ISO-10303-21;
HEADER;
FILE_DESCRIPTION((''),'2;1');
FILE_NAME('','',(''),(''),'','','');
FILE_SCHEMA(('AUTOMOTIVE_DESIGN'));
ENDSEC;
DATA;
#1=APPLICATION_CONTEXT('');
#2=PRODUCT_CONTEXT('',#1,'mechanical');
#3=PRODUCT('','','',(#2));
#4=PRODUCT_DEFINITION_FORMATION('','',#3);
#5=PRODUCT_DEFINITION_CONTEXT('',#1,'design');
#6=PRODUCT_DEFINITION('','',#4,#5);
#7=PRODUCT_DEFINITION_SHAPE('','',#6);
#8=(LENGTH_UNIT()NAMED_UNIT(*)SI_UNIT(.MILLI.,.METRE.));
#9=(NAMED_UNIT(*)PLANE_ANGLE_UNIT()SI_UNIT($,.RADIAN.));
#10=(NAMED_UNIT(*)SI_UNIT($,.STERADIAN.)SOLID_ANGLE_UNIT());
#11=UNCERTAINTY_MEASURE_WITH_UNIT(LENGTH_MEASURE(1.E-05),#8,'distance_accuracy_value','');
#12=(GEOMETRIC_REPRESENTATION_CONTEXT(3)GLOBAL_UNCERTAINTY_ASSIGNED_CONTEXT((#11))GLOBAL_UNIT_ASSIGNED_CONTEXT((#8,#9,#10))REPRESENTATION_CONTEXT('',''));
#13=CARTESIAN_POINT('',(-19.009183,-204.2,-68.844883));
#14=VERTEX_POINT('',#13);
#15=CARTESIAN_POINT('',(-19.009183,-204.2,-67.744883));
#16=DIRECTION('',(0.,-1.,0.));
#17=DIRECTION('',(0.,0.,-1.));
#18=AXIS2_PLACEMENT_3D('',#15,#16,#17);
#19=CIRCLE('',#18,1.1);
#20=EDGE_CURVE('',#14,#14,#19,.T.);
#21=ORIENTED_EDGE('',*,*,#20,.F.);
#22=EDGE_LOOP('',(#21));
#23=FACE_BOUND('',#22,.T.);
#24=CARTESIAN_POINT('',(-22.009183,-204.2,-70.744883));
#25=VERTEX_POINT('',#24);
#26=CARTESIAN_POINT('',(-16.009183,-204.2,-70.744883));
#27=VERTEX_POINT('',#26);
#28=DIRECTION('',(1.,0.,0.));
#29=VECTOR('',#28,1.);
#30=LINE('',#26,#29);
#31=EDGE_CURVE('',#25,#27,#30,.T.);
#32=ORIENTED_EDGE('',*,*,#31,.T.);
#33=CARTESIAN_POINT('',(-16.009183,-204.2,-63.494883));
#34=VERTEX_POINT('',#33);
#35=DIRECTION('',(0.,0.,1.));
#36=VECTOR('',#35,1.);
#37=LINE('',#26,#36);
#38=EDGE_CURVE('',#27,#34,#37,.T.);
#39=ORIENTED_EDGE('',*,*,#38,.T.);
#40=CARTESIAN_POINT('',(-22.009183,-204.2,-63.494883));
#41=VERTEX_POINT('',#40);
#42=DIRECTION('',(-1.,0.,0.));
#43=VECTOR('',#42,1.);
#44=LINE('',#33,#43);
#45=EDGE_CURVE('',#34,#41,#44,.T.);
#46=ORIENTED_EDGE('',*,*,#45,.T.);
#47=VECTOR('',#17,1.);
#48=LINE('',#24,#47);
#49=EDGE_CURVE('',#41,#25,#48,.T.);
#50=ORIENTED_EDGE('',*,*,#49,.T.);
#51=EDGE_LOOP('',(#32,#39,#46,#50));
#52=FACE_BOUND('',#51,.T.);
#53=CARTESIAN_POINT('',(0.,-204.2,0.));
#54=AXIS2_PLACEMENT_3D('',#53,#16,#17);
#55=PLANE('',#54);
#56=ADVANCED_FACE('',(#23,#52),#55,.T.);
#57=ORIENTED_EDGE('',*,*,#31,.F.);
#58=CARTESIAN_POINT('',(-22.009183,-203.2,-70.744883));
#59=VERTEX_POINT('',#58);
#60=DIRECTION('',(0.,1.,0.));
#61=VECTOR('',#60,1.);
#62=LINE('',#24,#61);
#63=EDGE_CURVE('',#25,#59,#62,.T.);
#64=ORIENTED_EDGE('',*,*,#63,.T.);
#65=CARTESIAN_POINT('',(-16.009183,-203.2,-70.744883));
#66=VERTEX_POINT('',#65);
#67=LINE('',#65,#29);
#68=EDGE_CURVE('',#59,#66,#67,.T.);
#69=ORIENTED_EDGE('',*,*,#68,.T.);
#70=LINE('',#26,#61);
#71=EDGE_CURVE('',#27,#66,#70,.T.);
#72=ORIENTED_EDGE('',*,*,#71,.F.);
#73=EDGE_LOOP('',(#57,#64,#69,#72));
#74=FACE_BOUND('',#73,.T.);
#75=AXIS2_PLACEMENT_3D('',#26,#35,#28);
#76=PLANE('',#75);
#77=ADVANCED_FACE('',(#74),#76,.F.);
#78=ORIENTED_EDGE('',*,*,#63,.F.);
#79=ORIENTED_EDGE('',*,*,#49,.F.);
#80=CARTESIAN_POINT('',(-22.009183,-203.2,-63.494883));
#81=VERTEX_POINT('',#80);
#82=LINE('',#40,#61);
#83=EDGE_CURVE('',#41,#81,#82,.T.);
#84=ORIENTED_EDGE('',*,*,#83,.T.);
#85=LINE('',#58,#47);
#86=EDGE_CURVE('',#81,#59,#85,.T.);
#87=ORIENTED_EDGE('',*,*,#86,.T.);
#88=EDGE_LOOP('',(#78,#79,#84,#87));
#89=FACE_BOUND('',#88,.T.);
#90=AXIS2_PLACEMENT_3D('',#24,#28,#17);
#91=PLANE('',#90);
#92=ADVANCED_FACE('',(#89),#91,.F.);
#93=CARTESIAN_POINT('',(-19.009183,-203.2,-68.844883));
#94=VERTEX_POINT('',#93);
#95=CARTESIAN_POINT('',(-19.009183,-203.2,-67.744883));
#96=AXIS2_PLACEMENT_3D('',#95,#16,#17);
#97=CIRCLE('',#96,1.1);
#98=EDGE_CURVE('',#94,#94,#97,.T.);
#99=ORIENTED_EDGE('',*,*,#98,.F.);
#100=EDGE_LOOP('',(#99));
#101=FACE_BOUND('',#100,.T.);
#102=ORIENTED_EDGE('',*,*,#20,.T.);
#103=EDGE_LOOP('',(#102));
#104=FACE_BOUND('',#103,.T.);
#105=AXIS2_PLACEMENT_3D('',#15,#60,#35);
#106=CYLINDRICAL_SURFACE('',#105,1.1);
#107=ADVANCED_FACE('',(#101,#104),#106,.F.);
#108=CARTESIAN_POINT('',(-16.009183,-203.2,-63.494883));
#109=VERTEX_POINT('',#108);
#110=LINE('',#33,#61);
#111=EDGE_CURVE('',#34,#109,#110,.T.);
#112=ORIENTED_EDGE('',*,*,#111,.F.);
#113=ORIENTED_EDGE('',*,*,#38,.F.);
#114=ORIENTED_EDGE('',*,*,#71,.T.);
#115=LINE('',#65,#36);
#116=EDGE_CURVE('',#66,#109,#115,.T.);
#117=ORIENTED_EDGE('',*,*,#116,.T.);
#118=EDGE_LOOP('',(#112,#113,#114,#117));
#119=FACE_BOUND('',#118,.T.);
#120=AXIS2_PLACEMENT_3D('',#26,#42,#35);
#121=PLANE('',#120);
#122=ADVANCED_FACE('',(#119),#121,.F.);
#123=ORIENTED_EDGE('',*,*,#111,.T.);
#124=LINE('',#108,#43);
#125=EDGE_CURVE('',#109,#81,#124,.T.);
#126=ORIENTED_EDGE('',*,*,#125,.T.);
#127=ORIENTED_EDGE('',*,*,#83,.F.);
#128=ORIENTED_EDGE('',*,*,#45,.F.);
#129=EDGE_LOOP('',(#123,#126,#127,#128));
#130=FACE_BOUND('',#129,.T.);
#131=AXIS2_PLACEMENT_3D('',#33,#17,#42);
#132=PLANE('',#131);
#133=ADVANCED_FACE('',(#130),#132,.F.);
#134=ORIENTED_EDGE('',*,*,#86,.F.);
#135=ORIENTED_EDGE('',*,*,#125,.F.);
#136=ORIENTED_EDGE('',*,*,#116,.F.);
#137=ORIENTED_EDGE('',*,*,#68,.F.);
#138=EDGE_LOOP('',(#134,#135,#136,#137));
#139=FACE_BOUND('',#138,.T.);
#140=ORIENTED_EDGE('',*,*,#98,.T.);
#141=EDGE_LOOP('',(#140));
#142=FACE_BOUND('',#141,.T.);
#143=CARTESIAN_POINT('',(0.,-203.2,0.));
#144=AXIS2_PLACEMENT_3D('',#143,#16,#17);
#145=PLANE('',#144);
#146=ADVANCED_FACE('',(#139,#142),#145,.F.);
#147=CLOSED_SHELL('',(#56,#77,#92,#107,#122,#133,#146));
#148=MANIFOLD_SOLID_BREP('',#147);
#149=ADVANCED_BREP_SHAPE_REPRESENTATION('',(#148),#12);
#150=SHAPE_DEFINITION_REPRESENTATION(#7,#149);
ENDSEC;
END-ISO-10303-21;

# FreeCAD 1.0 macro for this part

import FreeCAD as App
import Part
import Sketcher

V = App.Vector

doc = App.newDocument("Part")
body = doc.addObject("PartDesign::Body", "Body")

sketch1 = body.newObject("Sketcher::SketchObject", "Sketch")
sketch1.AttachmentSupport = (doc.getObject("XZ_Plane"), [""])
sketch1.MapMode = "FlatFace"
sketch1.AttachmentOffset = App.Placement(V(0, 0, 203.2), App.Rotation())
sketch1.addGeometry([
    Part.LineSegment(V(-16.009183, -70.744883, 0), V(-16.009183, -63.494883, 0)),
    Part.LineSegment(V(-16.009183, -63.494883, 0), V(-22.009183, -63.494883, 0)),
    Part.LineSegment(V(-22.009183, -63.494883, 0), V(-22.009183, -70.744883, 0)),
    Part.LineSegment(V(-22.009183, -70.744883, 0), V(-16.009183, -70.744883, 0)),
    Part.Circle(V(-19.009183, -67.744883, 0), V(0, 0, 1), 1.1),
], False)
sketch1.addConstraint([
    Sketcher.Constraint("Coincident", 0, 2, 1, 1),
    Sketcher.Constraint("Coincident", 1, 2, 2, 1),
    Sketcher.Constraint("Coincident", 2, 2, 3, 1),
    Sketcher.Constraint("Coincident", 3, 2, 0, 1),
    Sketcher.Constraint("Vertical", 0),
    Sketcher.Constraint("Horizontal", 1),
    Sketcher.Constraint("Vertical", 2),
    Sketcher.Constraint("Horizontal", 3),
    Sketcher.Constraint("Diameter", 4, 2.2),
    Sketcher.Constraint("DistanceX", 1, 2, 1, 1, 6.0),
    Sketcher.Constraint("DistanceX", 4, 3, 0, 2, 3.0),
    Sketcher.Constraint("DistanceY", 2, 2, 4, 3, 3.0),
    Sketcher.Constraint("DistanceY", 0, 1, 0, 2, 7.25),
    Sketcher.Constraint("DistanceX", 4, 3, -1, 1, 19.009183),
    Sketcher.Constraint("DistanceY", 4, 3, -1, 1, 67.744883),
])
pad1 = body.newObject("PartDesign::Pad", "Pad")
pad1.Profile = sketch1
pad1.Length = 1

doc.recompute()
